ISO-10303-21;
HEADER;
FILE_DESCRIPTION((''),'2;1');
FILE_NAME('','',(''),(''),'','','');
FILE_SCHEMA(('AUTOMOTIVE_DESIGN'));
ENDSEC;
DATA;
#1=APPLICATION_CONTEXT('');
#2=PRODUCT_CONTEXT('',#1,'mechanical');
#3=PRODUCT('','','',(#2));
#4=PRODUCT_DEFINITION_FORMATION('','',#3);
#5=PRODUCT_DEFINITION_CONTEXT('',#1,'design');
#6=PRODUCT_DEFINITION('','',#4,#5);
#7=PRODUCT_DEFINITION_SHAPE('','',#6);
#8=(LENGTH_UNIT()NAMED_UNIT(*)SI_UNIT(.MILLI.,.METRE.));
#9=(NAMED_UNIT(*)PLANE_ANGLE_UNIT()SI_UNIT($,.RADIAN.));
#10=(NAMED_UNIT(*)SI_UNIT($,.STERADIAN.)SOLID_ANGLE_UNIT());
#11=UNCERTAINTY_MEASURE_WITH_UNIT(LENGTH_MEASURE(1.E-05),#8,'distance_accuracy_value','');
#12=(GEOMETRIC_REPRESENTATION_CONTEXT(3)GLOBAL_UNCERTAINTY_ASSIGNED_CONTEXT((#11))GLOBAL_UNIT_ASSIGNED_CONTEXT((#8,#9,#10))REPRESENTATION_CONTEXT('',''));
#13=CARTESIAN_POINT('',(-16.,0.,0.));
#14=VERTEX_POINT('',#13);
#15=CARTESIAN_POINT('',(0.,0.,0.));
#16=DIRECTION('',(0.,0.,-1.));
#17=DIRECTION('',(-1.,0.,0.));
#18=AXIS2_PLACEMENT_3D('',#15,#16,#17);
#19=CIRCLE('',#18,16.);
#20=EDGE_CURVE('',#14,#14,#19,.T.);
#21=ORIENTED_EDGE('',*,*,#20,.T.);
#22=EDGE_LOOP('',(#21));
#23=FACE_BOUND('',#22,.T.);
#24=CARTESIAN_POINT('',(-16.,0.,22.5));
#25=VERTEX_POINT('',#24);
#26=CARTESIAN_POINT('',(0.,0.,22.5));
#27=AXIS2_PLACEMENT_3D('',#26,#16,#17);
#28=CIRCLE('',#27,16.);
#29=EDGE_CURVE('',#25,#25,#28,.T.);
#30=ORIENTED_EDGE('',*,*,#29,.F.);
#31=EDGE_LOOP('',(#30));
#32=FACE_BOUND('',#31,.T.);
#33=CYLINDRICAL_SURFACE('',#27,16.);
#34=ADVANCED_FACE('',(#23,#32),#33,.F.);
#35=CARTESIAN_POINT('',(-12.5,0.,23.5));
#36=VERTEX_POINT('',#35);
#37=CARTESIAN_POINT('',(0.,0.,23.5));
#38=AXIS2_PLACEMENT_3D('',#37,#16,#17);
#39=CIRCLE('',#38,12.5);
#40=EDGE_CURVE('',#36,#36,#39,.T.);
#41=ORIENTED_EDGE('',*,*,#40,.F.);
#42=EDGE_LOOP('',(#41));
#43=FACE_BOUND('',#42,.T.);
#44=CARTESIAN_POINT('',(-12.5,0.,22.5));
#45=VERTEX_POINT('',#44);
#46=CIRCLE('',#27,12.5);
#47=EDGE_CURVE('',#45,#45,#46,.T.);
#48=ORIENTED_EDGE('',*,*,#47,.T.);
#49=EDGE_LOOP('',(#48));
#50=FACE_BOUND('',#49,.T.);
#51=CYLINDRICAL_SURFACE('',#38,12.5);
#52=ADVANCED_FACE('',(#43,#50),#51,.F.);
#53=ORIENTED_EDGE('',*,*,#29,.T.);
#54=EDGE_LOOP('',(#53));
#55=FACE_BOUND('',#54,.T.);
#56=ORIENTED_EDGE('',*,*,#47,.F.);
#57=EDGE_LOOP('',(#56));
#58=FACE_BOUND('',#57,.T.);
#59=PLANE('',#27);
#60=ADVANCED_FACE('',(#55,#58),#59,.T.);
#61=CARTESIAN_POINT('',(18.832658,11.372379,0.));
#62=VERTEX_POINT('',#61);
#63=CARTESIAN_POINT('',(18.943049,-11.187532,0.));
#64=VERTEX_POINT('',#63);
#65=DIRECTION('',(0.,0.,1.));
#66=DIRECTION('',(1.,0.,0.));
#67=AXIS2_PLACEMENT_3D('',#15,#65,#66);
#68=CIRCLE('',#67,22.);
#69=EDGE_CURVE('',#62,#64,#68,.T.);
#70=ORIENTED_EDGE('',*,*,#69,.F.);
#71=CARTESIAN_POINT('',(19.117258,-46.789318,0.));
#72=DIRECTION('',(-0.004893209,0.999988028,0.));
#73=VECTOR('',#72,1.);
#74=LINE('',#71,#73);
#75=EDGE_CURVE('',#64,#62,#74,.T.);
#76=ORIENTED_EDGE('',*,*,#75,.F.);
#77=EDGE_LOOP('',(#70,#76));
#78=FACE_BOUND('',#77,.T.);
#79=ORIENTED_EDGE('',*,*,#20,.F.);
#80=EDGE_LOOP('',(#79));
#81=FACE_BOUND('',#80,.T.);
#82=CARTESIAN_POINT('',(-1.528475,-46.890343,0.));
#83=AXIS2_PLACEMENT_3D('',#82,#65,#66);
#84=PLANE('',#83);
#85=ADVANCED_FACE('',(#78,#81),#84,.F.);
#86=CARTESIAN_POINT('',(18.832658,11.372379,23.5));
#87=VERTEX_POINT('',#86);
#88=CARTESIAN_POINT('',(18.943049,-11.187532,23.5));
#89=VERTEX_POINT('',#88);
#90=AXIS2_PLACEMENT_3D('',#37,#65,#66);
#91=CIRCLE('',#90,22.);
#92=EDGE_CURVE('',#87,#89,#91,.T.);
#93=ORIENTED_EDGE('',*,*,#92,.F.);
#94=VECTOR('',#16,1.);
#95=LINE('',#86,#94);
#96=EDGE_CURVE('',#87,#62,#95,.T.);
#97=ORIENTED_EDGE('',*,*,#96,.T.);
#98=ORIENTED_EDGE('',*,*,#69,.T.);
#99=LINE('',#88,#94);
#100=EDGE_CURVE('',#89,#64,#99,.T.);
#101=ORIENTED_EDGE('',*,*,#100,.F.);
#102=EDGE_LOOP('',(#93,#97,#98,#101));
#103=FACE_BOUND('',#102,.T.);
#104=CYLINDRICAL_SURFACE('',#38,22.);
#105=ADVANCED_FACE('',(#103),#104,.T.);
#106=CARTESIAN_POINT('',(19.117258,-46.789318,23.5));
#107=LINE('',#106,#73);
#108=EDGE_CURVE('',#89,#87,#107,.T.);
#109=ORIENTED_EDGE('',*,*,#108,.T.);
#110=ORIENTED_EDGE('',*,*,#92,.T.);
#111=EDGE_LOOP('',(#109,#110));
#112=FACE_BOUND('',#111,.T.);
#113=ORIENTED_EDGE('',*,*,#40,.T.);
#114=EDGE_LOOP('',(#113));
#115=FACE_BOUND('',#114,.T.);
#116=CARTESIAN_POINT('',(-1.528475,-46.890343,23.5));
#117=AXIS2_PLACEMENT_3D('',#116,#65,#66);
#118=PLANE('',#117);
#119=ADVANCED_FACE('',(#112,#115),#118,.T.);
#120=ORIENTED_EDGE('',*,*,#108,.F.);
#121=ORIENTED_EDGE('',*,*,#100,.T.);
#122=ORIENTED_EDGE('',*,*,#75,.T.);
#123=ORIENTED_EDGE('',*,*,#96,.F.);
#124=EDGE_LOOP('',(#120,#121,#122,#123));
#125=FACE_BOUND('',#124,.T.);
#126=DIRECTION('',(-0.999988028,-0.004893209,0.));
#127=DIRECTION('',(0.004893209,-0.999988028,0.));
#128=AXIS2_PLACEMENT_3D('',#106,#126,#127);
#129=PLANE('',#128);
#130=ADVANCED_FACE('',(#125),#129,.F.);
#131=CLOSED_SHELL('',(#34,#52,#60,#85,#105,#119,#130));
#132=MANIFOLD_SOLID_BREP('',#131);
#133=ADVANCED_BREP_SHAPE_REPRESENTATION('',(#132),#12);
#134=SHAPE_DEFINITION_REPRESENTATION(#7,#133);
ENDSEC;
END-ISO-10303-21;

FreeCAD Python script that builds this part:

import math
import FreeCAD as App
import Part
import Sketcher

V = App.Vector
Q = App.Units.Quantity

doc = App.newDocument("Part")
body = doc.addObject("PartDesign::Body", "Body")

# Sketch on XY plane
sketch1 = body.newObject("Sketcher::SketchObject", "Sketch")
sketch1.AttachmentSupport = (doc.getObject("XY_Plane"), [""])
sketch1.MapMode = "FlatFace"
sketch1.addGeometry([
    Part.LineSegment(V(18.943049, -11.187532, 0), V(18.832658, 11.372379, 0)),
    Part.ArcOfCircle(Part.Circle(V(0, 0, 0), V(0, 0, 1), 22), math.radians(31.1263), math.radians(329.434423)),
], False)
sketch1.addConstraint([
    Sketcher.Constraint("Coincident", 0, 1, 1, 2),
    Sketcher.Constraint("Coincident", 1, 1, 0, 2),
    Sketcher.Constraint("Coincident", 1, 3, -1, 1),
    Sketcher.Constraint("Radius", 1, Q("22 mm")),
    Sketcher.Constraint("Distance", 0, Q("22.560181 mm")),
    Sketcher.Constraint("DistanceX", -1, 1, 0, 1, Q("18.943049 mm")),
])
pad1 = body.newObject("PartDesign::Pad", "Pad")
pad1.Profile = sketch1
pad1.Length = 23.5

# Sketch on XY plane
sketch2 = body.newObject("Sketcher::SketchObject", "Sketch001")
sketch2.AttachmentSupport = (doc.getObject("XY_Plane"), [""])
sketch2.MapMode = "FlatFace"
sketch2.addGeometry(Part.Circle(V(0, 0, 0), V(0, 0, 1), 16), False)
sketch2.addConstraint([
    Sketcher.Constraint("Coincident", 0, 3, -1, 1),
    Sketcher.Constraint("Diameter", 0, Q("32 mm")),
])
pocket1 = body.newObject("PartDesign::Pocket", "Pocket")
pocket1.Profile = sketch2
pocket1.Length = 22.5
pocket1.Reversed = True

# Sketch on XY plane
sketch3 = body.newObject("Sketcher::SketchObject", "Sketch002")
sketch3.AttachmentSupport = (doc.getObject("XY_Plane"), [""])
sketch3.MapMode = "FlatFace"
sketch3.AttachmentOffset = App.Placement(V(0, 0, 22.5), App.Rotation())
sketch3.addGeometry(Part.Circle(V(0, 0, 0), V(0, 0, 1), 12.5), False)
sketch3.addConstraint([
    Sketcher.Constraint("Coincident", 0, 3, -1, 1),
    Sketcher.Constraint("Diameter", 0, Q("25 mm")),
])
pocket2 = body.newObject("PartDesign::Pocket", "Pocket001")
pocket2.Profile = sketch3
pocket2.Type = "ThroughAll"
pocket2.Reversed = True

doc.recompute()
